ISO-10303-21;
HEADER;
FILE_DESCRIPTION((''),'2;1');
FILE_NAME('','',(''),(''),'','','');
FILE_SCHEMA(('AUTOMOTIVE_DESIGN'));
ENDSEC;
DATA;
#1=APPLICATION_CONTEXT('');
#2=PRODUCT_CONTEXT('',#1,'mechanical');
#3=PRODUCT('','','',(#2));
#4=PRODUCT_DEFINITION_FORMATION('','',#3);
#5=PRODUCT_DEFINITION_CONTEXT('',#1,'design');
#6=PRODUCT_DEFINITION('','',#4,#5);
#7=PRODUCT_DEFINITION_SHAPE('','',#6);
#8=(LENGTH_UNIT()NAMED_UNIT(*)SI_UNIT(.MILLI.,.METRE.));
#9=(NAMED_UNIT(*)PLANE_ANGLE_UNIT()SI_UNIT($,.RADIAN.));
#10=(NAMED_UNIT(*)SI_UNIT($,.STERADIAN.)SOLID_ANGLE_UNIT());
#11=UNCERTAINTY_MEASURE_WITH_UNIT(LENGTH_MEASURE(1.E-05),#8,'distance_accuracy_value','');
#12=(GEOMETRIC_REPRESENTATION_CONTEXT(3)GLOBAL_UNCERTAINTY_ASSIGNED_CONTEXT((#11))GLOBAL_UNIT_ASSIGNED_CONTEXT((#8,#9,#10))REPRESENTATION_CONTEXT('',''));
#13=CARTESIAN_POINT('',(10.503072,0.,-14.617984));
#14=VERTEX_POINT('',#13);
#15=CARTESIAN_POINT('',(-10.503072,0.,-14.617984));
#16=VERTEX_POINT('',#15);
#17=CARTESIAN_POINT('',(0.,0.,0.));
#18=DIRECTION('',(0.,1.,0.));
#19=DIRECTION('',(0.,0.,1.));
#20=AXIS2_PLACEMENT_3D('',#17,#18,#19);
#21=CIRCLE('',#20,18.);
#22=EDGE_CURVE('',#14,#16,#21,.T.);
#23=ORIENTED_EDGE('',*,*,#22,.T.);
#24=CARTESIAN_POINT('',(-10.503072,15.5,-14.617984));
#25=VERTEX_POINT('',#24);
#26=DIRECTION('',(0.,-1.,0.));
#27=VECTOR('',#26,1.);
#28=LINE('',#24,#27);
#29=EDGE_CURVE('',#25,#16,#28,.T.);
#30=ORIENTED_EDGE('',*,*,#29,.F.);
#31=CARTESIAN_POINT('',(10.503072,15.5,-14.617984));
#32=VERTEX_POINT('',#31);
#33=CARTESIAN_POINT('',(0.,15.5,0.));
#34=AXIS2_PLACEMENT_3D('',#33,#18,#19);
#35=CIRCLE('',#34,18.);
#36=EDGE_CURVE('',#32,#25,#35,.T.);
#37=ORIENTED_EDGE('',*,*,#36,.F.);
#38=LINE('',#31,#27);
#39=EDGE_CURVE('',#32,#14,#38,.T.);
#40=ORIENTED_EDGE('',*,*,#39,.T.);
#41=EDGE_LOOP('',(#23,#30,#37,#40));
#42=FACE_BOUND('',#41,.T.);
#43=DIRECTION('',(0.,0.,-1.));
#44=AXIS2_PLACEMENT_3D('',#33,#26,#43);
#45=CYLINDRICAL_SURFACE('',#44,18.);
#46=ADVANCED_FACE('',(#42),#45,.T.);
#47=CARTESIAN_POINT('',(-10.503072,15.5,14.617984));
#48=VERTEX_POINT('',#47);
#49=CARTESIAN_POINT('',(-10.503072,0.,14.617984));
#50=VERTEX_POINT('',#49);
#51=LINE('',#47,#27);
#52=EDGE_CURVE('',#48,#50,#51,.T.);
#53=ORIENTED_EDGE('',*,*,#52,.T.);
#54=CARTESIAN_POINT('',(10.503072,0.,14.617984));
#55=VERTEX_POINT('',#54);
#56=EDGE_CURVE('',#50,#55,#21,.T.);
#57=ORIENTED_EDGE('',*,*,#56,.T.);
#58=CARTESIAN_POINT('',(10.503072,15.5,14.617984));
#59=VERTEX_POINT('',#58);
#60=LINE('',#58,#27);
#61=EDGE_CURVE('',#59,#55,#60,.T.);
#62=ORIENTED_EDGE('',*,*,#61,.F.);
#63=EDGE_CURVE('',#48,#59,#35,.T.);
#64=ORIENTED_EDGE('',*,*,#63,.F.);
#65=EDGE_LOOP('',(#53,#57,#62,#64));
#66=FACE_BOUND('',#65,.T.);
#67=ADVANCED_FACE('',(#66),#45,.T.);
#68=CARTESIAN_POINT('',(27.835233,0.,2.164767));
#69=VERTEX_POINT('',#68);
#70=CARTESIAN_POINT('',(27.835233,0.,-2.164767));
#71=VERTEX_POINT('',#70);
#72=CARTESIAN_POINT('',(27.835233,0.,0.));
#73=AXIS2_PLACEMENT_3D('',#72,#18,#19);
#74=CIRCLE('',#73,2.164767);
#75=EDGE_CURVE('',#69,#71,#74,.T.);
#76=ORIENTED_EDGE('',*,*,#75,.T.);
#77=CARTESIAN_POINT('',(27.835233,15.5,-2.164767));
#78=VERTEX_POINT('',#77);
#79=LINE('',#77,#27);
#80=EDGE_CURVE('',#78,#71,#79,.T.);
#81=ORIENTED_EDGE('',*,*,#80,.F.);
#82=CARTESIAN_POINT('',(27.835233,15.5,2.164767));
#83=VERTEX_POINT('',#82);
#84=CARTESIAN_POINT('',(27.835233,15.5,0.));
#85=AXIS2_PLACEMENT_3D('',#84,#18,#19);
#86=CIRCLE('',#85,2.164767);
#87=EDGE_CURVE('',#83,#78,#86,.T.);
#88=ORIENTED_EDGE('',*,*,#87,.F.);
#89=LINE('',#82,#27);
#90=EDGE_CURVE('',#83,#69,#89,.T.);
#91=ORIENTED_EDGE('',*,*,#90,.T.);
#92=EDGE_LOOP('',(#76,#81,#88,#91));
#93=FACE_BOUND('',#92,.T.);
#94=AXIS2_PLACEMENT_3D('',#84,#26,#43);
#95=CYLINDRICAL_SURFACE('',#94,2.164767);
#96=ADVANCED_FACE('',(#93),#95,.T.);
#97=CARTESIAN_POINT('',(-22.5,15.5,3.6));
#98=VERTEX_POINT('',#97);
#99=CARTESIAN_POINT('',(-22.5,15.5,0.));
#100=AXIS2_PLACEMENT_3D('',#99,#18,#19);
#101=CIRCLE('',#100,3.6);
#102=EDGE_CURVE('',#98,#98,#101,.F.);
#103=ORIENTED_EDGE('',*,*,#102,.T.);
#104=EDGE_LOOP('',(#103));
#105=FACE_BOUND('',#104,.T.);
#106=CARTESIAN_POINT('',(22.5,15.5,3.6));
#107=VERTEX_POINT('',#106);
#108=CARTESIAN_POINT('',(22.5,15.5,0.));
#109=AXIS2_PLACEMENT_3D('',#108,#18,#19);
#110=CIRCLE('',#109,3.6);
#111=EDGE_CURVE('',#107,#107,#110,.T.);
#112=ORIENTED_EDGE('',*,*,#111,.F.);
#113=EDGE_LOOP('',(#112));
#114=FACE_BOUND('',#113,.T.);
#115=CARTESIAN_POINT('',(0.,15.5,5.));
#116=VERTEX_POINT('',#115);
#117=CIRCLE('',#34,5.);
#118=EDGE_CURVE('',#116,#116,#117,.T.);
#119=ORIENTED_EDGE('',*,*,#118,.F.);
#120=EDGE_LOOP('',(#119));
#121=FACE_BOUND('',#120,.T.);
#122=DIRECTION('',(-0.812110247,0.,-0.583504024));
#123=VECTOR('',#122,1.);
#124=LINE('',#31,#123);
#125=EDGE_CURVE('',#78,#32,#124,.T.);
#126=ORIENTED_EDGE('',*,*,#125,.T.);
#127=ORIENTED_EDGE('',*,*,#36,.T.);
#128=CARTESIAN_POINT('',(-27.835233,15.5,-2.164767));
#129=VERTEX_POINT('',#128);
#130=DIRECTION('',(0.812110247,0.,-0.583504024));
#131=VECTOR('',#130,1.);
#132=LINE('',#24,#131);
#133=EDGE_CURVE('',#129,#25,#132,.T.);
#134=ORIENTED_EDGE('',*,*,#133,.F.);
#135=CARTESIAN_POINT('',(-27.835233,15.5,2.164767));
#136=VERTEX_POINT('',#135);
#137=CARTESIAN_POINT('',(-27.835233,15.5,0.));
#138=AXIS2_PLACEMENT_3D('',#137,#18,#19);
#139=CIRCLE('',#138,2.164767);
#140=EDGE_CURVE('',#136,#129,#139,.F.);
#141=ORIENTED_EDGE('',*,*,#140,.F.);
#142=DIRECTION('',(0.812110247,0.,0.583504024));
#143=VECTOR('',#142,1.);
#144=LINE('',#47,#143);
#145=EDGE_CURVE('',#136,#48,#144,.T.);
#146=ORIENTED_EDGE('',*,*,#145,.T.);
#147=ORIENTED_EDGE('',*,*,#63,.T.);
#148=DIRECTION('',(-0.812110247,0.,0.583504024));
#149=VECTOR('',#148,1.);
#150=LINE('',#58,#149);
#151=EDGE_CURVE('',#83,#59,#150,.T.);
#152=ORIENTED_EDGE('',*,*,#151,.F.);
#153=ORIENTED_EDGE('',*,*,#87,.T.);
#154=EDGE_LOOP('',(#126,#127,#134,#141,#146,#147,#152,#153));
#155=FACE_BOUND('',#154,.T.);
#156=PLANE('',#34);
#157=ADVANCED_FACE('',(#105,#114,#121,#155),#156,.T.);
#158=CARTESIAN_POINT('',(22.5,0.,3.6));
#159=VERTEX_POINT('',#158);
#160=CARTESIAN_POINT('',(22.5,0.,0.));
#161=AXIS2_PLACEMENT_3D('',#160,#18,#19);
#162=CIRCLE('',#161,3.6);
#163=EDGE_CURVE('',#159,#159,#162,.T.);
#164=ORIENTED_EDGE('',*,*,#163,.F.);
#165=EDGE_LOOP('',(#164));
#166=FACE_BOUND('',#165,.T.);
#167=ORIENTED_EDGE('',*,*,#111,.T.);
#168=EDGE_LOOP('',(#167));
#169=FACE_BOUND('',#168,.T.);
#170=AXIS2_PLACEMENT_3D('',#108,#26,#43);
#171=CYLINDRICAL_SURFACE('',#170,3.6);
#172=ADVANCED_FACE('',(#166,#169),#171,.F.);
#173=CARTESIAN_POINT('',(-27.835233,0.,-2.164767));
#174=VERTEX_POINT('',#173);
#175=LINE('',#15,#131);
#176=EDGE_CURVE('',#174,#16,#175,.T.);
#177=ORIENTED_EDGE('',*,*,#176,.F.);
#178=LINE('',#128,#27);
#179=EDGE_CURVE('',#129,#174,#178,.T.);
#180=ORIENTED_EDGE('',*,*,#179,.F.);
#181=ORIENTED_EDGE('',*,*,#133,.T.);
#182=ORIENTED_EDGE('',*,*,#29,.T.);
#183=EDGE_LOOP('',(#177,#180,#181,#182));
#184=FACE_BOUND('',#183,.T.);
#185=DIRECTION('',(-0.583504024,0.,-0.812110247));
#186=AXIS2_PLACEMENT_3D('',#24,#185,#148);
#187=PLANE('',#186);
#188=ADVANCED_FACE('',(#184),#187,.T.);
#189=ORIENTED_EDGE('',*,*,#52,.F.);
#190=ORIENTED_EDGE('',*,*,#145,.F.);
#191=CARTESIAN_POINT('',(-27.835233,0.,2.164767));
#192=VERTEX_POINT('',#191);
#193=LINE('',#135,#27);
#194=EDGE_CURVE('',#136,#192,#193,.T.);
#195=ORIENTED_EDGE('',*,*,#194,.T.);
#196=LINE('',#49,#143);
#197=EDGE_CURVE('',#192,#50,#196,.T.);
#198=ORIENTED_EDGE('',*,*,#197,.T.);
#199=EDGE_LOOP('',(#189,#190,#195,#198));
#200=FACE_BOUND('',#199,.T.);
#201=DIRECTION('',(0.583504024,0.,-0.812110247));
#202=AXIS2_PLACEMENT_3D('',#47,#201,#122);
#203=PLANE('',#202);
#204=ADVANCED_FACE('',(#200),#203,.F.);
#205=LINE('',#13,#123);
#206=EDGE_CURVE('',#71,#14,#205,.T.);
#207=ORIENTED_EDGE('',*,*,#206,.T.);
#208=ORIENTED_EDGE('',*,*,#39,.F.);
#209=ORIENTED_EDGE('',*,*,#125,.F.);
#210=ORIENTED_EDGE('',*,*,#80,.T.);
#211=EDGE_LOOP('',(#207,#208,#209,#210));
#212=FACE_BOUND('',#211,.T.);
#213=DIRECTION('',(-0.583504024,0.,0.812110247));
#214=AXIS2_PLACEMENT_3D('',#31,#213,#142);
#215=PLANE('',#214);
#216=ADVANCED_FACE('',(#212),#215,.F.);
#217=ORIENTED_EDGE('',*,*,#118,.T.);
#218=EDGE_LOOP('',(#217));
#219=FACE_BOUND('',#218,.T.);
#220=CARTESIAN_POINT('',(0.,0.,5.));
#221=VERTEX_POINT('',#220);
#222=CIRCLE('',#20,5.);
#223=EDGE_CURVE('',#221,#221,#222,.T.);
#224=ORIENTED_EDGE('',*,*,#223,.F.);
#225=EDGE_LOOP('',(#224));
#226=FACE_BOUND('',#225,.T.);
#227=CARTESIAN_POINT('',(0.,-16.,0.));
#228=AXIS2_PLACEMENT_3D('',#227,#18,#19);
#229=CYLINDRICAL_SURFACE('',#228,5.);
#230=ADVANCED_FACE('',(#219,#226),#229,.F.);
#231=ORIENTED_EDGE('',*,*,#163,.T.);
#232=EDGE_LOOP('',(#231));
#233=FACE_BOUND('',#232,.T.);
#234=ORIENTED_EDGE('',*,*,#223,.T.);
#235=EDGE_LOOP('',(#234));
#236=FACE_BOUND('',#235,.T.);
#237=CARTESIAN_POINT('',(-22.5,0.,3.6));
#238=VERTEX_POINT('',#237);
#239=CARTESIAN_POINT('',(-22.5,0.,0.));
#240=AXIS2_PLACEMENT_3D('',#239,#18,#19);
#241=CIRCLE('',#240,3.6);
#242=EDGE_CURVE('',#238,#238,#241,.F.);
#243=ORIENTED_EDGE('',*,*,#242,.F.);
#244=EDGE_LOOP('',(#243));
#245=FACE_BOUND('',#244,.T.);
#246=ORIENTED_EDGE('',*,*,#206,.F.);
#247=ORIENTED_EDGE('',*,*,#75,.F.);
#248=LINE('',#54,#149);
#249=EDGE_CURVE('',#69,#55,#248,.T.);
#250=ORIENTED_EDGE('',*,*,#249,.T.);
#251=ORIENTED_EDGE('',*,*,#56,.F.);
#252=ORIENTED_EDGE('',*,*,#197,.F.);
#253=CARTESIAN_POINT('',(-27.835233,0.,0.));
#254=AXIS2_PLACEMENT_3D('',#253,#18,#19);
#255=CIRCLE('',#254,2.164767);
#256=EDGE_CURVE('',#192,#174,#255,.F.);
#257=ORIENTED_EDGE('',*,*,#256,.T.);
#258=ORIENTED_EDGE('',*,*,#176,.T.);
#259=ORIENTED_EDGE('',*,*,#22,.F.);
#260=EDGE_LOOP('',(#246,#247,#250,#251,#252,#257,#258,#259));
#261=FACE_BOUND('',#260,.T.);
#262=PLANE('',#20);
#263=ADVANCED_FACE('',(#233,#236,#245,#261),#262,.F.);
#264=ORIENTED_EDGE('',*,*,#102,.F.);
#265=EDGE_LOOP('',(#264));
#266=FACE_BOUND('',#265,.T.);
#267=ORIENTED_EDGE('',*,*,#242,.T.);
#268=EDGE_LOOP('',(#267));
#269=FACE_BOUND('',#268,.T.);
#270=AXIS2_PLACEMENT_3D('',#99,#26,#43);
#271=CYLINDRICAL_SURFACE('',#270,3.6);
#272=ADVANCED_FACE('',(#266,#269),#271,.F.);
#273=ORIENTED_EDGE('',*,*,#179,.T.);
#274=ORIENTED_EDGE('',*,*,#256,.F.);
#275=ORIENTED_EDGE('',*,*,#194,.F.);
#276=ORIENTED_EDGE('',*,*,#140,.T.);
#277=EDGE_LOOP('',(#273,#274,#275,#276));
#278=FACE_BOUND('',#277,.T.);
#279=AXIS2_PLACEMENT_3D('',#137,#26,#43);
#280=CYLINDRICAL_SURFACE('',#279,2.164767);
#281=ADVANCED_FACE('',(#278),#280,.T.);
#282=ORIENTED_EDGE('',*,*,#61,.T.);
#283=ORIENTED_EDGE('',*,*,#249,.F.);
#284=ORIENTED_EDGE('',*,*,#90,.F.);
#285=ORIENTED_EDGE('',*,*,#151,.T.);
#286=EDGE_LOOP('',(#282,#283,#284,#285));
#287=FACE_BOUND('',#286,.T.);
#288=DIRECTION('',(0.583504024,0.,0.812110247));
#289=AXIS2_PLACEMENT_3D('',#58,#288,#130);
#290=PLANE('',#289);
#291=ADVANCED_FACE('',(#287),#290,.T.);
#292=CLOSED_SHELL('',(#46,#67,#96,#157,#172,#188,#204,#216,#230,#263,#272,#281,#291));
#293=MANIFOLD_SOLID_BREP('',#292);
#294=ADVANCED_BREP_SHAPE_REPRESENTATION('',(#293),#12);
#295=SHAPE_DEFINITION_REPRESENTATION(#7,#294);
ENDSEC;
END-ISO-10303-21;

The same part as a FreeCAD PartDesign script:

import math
import FreeCAD as App
import Part
import Sketcher
Q = App.Units.Quantity

doc = App.newDocument("Part")
body = doc.addObject("PartDesign::Body", "Body")

sketch1 = body.newObject("Sketcher::SketchObject", "Sketch")
sketch1.AttachmentSupport = (doc.getObject("XZ_Plane"), [""])
sketch1.MapMode = "FlatFace"
sketch1.addGeometry([
    Part.LineSegment(App.Vector(27.835233, -2.164767, 0), App.Vector(10.503072, -14.617984, 0)),
    Part.ArcOfCircle(Part.Circle(App.Vector(0, 0, 0), App.Vector(0, 0, 1), 18), math.radians(-125.697376), math.radians(-54.302624)),
    Part.LineSegment(App.Vector(-10.503072, -14.617984, 0), App.Vector(-27.835233, -2.164767, 0)),
    Part.ArcOfCircle(Part.Circle(App.Vector(-27.835233, 0, 0), App.Vector(0, 0, 1), 2.164767), math.radians(90), math.radians(270)),
    Part.LineSegment(App.Vector(-27.835233, 2.164767, 0), App.Vector(-10.503072, 14.617984, 0)),
    Part.ArcOfCircle(Part.Circle(App.Vector(0, 0, 0), App.Vector(0, 0, 1), 18), math.radians(54.302624), math.radians(125.697376)),
    Part.LineSegment(App.Vector(10.503072, 14.617984, 0), App.Vector(27.835233, 2.164767, 0)),
    Part.ArcOfCircle(Part.Circle(App.Vector(27.835233, 0, 0), App.Vector(0, 0, 1), 2.164767), math.radians(-90), math.radians(90)),
    Part.Circle(App.Vector(-22.5, 0, 0), App.Vector(0, 0, 1), 3.6),
    Part.Circle(App.Vector(22.5, 0, 0), App.Vector(0, 0, 1), 3.6),
], False)
sketch1.addConstraint([
    Sketcher.Constraint("Tangent", 0, 2, 1, 2),
    Sketcher.Constraint("Tangent", 1, 1, 2, 1),
    Sketcher.Constraint("Coincident", 2, 2, 3, 2),
    Sketcher.Constraint("Coincident", 3, 1, 4, 1),
    Sketcher.Constraint("Tangent", 4, 2, 5, 2),
    Sketcher.Constraint("Tangent", 5, 1, 6, 1),
    Sketcher.Constraint("Coincident", 6, 2, 7, 2),
    Sketcher.Constraint("Coincident", 7, 1, 0, 1),
    Sketcher.Constraint("Coincident", 1, 3, -1, 1),
    Sketcher.Constraint("Coincident", 5, 3, -1, 1),
    Sketcher.Constraint("Equal", 1, 5),
    Sketcher.Constraint("Equal", 3, 7),
    Sketcher.Constraint("Equal", 8, 9),
    Sketcher.Constraint("Symmetric", 3, 3, 7, 3, -1, 1),
    Sketcher.Constraint("Symmetric", 8, 3, 9, 3, -1, 1),
    Sketcher.Constraint("Symmetric", 3, 1, 6, 2, -2),
    Sketcher.Constraint("PointOnObject", 8, 3, -1),
    Sketcher.Constraint("Parallel", 0, 4),
    Sketcher.Constraint("Parallel", 2, 6),
    Sketcher.Constraint("Vertical", 3, 3, 2, 2),
    Sketcher.Constraint("Radius", 1, Q("18 mm")),
    Sketcher.Constraint("Diameter", 8, Q("7.2 mm")),
    Sketcher.Constraint("DistanceX", 8, 3, 9, 3, Q("45 mm")),
    Sketcher.Constraint("Radius", 3, Q("2.164767 mm")),
    Sketcher.Constraint("DistanceX", 0, 2, 7, 3, Q("17.33216 mm")),
])
pad1 = body.newObject("PartDesign::Pad", "Pad")
pad1.Profile = sketch1
pad1.Length = 15.5
pad1.Reversed = True

sketch2 = body.newObject("Sketcher::SketchObject", "Sketch001")
sketch2.AttachmentSupport = (doc.getObject("XZ_Plane"), [""])
sketch2.MapMode = "FlatFace"
sketch2.AttachmentOffset = App.Placement(App.Vector(0, 0, -15.5), App.Rotation())
sketch2.addGeometry(Part.Circle(App.Vector(0, 0, 0), App.Vector(0, 0, 1), 5), False)
sketch2.addConstraint([
    Sketcher.Constraint("Coincident", 0, 3, -1, 1),
    Sketcher.Constraint("Diameter", 0, Q("10 mm")),
])
pocket1 = body.newObject("PartDesign::Pocket", "Pocket")
pocket1.Profile = sketch2
pocket1.Length = 31.5
pocket1.Reversed = True

doc.recompute()
